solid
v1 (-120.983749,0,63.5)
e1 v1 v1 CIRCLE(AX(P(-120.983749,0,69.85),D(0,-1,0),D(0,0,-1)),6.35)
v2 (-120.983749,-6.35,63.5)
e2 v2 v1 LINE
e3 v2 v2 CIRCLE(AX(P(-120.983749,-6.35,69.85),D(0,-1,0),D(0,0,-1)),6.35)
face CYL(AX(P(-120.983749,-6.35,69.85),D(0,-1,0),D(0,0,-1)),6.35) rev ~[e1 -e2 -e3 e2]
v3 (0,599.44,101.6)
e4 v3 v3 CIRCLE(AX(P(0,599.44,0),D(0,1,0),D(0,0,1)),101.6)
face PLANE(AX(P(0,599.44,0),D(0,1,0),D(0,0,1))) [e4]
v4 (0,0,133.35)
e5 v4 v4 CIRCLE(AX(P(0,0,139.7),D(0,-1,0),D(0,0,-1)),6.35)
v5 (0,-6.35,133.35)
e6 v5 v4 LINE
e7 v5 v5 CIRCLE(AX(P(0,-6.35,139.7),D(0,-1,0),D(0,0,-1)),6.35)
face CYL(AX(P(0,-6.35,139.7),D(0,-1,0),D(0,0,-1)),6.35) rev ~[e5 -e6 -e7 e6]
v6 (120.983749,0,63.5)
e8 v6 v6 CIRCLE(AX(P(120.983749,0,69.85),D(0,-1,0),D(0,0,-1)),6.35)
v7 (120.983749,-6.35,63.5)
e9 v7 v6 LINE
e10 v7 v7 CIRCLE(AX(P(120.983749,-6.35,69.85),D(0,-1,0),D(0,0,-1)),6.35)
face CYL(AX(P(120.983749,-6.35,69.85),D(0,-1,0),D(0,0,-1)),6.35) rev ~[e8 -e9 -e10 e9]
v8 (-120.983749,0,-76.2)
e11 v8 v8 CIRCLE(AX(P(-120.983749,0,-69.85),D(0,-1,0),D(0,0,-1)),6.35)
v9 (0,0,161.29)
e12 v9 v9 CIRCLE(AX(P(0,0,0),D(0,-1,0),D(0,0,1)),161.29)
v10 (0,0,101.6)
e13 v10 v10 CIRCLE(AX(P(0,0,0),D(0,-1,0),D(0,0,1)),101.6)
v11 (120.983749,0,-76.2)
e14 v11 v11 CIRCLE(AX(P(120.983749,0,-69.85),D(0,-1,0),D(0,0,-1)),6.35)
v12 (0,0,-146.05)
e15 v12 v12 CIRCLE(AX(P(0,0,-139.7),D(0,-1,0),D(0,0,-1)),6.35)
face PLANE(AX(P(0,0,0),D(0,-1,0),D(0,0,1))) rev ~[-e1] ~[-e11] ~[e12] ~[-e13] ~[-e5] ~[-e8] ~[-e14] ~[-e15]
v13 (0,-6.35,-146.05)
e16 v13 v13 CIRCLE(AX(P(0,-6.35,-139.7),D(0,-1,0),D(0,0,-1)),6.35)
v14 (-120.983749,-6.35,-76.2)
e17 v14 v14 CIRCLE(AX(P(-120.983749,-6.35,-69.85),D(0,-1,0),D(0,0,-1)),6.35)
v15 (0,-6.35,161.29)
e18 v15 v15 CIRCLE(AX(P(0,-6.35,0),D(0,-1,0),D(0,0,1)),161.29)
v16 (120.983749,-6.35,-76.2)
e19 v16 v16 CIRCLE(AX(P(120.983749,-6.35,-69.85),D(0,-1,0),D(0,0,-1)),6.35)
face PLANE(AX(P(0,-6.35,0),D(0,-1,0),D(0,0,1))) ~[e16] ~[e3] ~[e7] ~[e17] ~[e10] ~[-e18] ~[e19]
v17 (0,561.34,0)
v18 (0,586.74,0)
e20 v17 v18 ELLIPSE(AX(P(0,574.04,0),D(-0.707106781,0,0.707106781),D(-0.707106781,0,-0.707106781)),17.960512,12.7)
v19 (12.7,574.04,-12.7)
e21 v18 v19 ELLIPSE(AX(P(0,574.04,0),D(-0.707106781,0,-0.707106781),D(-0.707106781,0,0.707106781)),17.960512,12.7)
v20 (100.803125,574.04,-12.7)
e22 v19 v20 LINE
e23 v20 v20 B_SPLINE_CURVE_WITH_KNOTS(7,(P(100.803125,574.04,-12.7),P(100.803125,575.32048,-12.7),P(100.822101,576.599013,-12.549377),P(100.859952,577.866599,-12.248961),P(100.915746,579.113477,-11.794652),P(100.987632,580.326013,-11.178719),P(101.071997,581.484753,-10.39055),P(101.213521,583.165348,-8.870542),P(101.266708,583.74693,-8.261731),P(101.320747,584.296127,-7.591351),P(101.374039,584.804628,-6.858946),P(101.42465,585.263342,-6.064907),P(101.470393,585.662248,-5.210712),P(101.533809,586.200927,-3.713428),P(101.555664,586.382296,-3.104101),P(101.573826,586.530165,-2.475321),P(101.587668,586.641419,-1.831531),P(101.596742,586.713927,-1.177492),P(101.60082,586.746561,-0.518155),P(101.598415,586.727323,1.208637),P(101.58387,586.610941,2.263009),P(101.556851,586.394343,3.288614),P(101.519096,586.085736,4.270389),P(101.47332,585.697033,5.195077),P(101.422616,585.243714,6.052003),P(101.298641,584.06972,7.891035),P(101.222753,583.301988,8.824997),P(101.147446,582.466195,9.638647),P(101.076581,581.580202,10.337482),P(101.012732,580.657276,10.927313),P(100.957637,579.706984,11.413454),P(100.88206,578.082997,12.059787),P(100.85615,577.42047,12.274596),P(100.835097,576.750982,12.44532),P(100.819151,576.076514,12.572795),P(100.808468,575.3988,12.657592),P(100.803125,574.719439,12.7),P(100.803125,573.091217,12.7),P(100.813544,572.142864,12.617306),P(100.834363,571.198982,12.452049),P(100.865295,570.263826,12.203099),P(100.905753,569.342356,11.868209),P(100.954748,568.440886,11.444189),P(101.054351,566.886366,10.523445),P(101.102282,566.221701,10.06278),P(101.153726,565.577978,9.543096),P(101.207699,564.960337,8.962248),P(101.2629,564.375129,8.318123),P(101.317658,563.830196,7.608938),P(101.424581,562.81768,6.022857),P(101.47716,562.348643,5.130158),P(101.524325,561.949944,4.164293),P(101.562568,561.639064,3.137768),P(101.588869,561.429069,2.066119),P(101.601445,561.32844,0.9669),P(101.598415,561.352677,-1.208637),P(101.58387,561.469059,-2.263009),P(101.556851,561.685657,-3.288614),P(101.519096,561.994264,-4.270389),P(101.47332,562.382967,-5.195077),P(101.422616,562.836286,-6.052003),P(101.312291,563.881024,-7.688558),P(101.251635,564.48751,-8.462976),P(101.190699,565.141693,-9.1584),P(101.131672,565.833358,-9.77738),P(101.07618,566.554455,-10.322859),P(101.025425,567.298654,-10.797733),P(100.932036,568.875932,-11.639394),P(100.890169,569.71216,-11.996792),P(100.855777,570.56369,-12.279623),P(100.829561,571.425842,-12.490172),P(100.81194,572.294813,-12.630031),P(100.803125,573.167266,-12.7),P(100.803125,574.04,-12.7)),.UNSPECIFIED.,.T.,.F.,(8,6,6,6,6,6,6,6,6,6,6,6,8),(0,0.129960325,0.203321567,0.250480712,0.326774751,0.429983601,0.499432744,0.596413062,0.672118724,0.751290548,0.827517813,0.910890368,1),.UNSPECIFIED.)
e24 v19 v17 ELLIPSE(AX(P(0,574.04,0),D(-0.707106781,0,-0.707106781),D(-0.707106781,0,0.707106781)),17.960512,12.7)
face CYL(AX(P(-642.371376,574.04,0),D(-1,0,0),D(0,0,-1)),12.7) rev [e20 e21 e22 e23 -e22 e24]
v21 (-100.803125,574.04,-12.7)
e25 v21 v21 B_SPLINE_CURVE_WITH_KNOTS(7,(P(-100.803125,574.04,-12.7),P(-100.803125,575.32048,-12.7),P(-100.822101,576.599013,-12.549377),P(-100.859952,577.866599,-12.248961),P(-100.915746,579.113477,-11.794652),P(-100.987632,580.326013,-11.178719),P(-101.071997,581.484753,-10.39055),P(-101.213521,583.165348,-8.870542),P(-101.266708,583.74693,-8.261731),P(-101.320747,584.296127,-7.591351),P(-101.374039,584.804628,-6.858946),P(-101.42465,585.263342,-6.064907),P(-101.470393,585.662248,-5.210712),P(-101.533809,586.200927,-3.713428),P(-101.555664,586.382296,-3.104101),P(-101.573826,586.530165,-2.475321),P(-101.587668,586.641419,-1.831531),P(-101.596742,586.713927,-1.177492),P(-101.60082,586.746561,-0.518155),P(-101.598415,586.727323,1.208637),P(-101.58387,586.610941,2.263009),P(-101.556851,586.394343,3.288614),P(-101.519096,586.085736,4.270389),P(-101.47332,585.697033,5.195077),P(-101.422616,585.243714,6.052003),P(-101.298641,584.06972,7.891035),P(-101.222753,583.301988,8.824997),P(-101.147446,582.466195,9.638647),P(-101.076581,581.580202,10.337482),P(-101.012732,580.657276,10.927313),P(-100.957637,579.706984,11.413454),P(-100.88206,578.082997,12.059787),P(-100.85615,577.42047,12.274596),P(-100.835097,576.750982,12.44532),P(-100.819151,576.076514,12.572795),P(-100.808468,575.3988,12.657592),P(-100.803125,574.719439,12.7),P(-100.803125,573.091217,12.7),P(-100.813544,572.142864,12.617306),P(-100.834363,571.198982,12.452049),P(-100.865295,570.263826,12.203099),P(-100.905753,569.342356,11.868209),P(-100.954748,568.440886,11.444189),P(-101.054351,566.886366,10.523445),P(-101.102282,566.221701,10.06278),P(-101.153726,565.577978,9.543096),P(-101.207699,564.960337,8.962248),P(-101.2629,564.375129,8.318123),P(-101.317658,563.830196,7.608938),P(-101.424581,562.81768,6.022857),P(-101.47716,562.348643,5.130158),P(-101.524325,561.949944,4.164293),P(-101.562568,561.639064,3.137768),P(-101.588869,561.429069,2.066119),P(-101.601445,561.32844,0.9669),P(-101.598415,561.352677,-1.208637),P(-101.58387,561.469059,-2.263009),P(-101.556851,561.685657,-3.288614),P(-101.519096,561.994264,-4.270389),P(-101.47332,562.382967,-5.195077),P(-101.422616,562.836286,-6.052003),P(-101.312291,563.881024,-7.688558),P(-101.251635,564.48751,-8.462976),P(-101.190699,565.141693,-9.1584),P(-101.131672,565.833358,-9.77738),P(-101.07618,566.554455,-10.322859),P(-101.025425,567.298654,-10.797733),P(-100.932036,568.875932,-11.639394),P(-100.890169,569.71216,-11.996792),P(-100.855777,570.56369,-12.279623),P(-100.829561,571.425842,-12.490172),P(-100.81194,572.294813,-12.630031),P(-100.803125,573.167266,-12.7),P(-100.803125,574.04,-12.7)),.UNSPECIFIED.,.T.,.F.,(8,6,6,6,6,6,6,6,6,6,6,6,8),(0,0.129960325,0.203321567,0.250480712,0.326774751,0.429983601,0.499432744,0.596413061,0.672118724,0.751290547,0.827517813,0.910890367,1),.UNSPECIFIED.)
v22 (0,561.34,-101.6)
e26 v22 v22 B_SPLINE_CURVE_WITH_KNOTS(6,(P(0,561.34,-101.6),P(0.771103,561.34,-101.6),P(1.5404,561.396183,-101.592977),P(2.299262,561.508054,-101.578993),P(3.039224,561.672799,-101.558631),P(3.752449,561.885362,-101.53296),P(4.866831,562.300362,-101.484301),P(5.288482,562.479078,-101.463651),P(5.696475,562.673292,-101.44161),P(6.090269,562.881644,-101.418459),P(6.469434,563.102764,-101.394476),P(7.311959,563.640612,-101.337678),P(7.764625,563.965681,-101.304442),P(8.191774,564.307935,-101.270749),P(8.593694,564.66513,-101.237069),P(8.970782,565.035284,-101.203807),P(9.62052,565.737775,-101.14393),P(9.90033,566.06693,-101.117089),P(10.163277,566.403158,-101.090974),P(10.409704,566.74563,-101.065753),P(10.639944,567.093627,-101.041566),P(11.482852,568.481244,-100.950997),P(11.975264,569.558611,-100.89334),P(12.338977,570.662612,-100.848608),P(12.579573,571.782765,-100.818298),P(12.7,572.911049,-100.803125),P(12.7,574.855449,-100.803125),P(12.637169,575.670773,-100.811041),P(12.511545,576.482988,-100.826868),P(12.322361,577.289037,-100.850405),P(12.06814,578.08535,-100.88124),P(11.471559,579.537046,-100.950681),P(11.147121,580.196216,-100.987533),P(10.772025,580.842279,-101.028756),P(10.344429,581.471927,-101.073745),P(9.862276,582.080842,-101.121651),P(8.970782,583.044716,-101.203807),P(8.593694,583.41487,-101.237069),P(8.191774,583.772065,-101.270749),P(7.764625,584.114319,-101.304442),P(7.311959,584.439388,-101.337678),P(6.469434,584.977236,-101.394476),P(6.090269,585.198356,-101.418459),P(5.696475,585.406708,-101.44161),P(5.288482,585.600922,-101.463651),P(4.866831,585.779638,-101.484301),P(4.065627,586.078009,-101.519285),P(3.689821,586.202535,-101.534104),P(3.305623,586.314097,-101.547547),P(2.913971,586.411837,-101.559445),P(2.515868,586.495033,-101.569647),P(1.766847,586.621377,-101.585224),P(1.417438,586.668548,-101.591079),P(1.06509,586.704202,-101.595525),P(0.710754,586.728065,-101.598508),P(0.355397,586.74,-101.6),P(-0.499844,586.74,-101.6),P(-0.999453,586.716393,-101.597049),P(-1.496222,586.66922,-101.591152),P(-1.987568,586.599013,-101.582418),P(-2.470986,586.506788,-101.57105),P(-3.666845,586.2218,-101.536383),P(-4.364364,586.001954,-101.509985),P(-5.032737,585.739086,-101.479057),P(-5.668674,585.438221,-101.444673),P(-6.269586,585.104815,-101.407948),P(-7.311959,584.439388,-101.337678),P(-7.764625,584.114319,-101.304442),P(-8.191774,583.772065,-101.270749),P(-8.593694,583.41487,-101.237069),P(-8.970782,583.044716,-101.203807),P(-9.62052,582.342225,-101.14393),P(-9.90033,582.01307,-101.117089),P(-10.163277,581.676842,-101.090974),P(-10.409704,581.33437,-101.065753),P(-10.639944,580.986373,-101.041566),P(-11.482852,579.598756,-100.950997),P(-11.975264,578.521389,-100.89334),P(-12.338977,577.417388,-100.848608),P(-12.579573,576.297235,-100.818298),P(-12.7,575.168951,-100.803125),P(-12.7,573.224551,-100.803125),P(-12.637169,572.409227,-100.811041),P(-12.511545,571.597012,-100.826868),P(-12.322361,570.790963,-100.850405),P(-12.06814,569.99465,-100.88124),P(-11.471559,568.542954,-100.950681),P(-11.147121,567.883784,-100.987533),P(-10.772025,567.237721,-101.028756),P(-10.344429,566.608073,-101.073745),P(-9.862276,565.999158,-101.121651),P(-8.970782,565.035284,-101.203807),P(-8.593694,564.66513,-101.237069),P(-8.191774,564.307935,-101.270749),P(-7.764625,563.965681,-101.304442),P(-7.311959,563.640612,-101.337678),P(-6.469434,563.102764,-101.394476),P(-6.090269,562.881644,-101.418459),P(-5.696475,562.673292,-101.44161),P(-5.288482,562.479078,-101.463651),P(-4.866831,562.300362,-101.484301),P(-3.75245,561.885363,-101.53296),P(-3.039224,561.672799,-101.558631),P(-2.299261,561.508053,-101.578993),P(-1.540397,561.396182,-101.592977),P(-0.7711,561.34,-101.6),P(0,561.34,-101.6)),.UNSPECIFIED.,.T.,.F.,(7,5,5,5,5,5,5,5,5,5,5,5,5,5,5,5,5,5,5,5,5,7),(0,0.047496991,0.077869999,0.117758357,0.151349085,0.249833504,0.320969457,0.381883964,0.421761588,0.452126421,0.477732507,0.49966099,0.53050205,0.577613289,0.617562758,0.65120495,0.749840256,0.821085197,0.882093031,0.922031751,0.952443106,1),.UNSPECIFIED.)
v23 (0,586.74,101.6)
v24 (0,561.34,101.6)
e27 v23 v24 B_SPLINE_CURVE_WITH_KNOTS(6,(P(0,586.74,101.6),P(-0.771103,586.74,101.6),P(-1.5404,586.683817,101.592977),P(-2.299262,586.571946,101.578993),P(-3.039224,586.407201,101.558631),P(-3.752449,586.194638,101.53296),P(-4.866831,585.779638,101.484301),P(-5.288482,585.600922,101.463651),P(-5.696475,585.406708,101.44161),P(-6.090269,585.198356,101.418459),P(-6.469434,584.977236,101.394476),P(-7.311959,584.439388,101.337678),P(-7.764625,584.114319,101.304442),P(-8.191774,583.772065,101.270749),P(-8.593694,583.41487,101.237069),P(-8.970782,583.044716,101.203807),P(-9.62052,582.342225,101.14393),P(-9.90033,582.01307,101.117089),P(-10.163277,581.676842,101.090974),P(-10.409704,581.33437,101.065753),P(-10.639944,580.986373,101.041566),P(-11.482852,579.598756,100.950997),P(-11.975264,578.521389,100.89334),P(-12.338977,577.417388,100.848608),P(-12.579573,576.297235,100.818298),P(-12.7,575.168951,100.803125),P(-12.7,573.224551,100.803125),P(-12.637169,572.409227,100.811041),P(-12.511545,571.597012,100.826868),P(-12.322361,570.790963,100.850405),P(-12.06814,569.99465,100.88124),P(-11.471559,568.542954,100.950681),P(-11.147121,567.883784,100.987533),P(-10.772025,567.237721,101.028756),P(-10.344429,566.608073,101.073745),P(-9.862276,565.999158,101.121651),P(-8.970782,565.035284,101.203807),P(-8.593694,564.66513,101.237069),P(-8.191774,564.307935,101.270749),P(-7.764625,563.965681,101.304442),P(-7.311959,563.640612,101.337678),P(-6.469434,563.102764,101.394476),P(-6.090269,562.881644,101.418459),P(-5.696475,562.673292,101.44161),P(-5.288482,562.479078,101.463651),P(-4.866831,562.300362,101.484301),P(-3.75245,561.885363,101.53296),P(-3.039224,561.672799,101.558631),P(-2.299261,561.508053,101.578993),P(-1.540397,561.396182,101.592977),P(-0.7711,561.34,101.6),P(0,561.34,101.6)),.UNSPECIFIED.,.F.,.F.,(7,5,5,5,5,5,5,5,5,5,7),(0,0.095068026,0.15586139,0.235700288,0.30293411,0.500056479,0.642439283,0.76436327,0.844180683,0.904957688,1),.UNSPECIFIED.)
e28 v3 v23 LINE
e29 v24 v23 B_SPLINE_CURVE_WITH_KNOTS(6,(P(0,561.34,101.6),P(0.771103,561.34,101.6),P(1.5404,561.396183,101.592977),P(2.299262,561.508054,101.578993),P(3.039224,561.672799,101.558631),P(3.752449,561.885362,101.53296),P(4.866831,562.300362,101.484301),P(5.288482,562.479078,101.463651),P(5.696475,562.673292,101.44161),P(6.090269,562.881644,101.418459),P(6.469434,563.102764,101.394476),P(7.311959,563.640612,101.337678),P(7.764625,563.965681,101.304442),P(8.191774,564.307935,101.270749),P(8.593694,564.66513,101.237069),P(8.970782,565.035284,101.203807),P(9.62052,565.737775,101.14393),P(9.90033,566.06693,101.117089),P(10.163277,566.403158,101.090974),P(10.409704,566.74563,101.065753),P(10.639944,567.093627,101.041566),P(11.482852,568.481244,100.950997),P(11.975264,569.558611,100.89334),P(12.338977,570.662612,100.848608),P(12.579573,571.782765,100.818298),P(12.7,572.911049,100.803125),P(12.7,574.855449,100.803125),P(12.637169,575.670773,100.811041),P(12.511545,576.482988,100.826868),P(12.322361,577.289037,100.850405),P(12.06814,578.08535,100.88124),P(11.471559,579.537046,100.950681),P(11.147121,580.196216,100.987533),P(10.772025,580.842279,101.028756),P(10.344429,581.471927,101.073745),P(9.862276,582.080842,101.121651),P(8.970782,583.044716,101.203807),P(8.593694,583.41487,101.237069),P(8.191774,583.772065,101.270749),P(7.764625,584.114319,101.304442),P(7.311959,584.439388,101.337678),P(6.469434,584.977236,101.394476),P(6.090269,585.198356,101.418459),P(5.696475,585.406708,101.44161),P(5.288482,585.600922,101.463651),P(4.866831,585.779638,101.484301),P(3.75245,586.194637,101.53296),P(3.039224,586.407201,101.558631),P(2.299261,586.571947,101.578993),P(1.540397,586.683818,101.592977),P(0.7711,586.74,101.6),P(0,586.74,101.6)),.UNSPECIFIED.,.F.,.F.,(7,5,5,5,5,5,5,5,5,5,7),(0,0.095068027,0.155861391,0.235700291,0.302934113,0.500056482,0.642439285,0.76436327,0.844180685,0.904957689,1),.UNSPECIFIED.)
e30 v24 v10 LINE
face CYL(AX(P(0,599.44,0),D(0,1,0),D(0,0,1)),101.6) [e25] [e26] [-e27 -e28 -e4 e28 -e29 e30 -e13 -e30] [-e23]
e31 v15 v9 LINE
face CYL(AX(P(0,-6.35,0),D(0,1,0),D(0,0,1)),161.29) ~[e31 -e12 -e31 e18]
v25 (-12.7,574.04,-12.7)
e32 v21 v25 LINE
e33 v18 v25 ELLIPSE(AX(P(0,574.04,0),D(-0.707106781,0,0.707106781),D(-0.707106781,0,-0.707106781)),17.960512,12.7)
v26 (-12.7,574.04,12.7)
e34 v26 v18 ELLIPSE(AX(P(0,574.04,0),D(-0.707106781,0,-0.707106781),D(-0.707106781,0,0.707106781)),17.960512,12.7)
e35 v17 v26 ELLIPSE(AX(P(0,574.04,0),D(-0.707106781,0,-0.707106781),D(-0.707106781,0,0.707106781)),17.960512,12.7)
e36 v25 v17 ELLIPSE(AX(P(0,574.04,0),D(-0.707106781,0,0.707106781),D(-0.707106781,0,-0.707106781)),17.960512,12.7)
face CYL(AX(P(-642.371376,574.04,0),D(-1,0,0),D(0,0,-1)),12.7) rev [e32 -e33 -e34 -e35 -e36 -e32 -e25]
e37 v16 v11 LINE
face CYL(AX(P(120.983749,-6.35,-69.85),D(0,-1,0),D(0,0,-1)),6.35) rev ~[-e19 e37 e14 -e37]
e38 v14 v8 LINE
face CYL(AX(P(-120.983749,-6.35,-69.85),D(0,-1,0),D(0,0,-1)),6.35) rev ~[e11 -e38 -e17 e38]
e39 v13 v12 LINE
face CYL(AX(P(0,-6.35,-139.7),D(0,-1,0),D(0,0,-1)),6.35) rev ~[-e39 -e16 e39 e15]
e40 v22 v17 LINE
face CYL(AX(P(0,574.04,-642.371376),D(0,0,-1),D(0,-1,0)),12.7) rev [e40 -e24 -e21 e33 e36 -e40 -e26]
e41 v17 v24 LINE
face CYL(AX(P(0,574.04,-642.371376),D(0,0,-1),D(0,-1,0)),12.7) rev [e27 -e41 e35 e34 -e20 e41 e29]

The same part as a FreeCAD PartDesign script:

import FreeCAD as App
import Part
import Sketcher
Q = App.Units.Quantity


def add_polygon(sketch, points):
    """Adds a closed chain of lines whose ends are joined by coincident constraints."""
    first, n = sketch.GeometryCount, len(points)
    for a, b in zip(points, points[1:] + points[:1]):
        sketch.addGeometry(Part.LineSegment(App.Vector(*a, 0), App.Vector(*b, 0)), False)
    for i in range(n):
        sketch.addConstraint(Sketcher.Constraint("Coincident", first + i, 2, first + (i + 1) % n, 1))

doc = App.newDocument("Part")
body = doc.addObject("PartDesign::Body", "Body")

sketch1 = body.newObject("Sketcher::SketchObject", "Sketch")
sketch1.AttachmentSupport = (doc.getObject("XY_Plane"), [""])
sketch1.MapMode = "FlatFace"
add_polygon(sketch1, [(101.6, 0), (101.6, 590.55), (0, 590.55), (0, -6.35), (161.29, -6.35), (161.29, 0)])
sketch1.addConstraint([
    Sketcher.Constraint("Vertical", 0),
    Sketcher.Constraint("Horizontal", 1),
    Sketcher.Constraint("Vertical", 2),
    Sketcher.Constraint("Horizontal", 3),
    Sketcher.Constraint("Vertical", 4),
    Sketcher.Constraint("Horizontal", 5),
    Sketcher.Constraint("PointOnObject", 1, 2, -2),
    Sketcher.Constraint("PointOnObject", 4, 2, -1),
    Sketcher.Constraint("DistanceX", 1, 2, 1, 1, Q("4 in")),
    Sketcher.Constraint("DistanceY", 2, 2, 2, 1, Q("23.5 in")),
    Sketcher.Constraint("DistanceX", 3, 1, 3, 2, Q("6.35 in")),
    Sketcher.Constraint("DistanceY", 0, 1, 0, 2, Q("23.25 in")),
])
revolution = body.newObject("PartDesign::Revolution", "Revolution")
revolution.Profile = sketch1
revolution.ReferenceAxis = (sketch1, ["V_Axis"])
revolution.Angle = 360

sketch2 = body.newObject("Sketcher::SketchObject", "Sketch001")
sketch2.AttachmentSupport = (doc.getObject("XZ_Plane"), [""])
sketch2.MapMode = "FlatFace"
sketch2.AttachmentOffset = App.Placement(App.Vector(0, 0, -23.6 * 25.4), App.Rotation())
sketch2.addGeometry(Part.Circle(App.Vector(0, 0, 0), App.Vector(0, 0, 1), 101.6), False)
sketch2.addConstraint([
    Sketcher.Constraint("Coincident", 0, 3, -1, 1),
    Sketcher.Constraint("Diameter", 0, Q("8 in")),
])
pad1 = body.newObject("PartDesign::Pad", "Pad")
pad1.Profile = sketch2
pad1.Length = Q("0.35 in")

sketch3 = body.newObject("Sketcher::SketchObject", "Sketch002")
sketch3.AttachmentSupport = (doc.getObject("YZ_Plane"), [""])
sketch3.MapMode = "FlatFace"
sketch3.addGeometry(Part.Circle(App.Vector(574.04, 0, 0), App.Vector(0, 0, 1), 12.7), False)
sketch3.addConstraint([
    Sketcher.Constraint("PointOnObject", 0, 3, -1),
    Sketcher.Constraint("Diameter", 0, Q("1 in")),
    Sketcher.Constraint("DistanceX", -1, 1, 0, 3, Q("22.6 in")),
])
pocket1 = body.newObject("PartDesign::Pocket", "Pocket")
pocket1.Profile = sketch3
pocket1.Type = "ThroughAll"
pocket1.Midplane = True

sketch4 = body.newObject("Sketcher::SketchObject", "Sketch003")
sketch4.AttachmentSupport = (doc.getObject("XY_Plane"), [""])
sketch4.MapMode = "FlatFace"
sketch4.addGeometry(Part.Circle(App.Vector(0, 574.04, 0), App.Vector(0, 0, 1), 12.7), False)
sketch4.addConstraint([
    Sketcher.Constraint("PointOnObject", 0, 3, -2),
    Sketcher.Constraint("Diameter", 0, Q("1 in")),
    Sketcher.Constraint("DistanceY", -1, 1, 0, 3, Q("22.6 in")),
])
pocket2 = body.newObject("PartDesign::Pocket", "Pocket001")
pocket2.Profile = sketch4
pocket2.Type = "ThroughAll"
pocket2.Midplane = True

sketch5 = body.newObject("Sketcher::SketchObject", "Sketch004")
sketch5.AttachmentSupport = (doc.getObject("XZ_Plane"), [""])
sketch5.MapMode = "FlatFace"
sketch5.AttachmentOffset = App.Placement(App.Vector(0, 0, 0.25 * 25.4), App.Rotation())
sketch5.addGeometry([
    Part.Circle(App.Vector(0, 139.7, 0), App.Vector(0, 0, 1), 6.35),
    Part.Circle(App.Vector(120.983749, 69.85, 0), App.Vector(0, 0, 1), 6.35),
    Part.Circle(App.Vector(120.983749, -69.85, 0), App.Vector(0, 0, 1), 6.35),
    Part.Circle(App.Vector(0, -139.7, 0), App.Vector(0, 0, 1), 6.35),
    Part.Circle(App.Vector(-120.983749, -69.85, 0), App.Vector(0, 0, 1), 6.35),
    Part.Circle(App.Vector(-120.983749, 69.85, 0), App.Vector(0, 0, 1), 6.35),
], False)
sketch5.addConstraint([
    Sketcher.Constraint("Equal", 0, 1),
    Sketcher.Constraint("Equal", 1, 2),
    Sketcher.Constraint("Equal", 2, 3),
    Sketcher.Constraint("Equal", 3, 4),
    Sketcher.Constraint("Equal", 4, 5),
    Sketcher.Constraint("Symmetric", 0, 3, 3, 3, -1, 1),
    Sketcher.Constraint("Symmetric", 1, 3, 4, 3, -1, 1),
    Sketcher.Constraint("Symmetric", 2, 3, 5, 3, -1, 1),
    Sketcher.Constraint("Symmetric", 2, 3, 4, 3, -2),
    Sketcher.Constraint("PointOnObject", 0, 3, -2),
    Sketcher.Constraint("Diameter", 0, Q("0.5 in")),
    Sketcher.Constraint("DistanceY", 3, 3, 0, 3, Q("11 in")),
    Sketcher.Constraint("DistanceY", 2, 3, 1, 3, Q("5.5 in")),
    Sketcher.Constraint("DistanceX", -1, 1, 1, 3, 120.983749),
])
pocket3 = body.newObject("PartDesign::Pocket", "Pocket002")
pocket3.Profile = sketch5
pocket3.Type = "ThroughAll"

doc.recompute()
